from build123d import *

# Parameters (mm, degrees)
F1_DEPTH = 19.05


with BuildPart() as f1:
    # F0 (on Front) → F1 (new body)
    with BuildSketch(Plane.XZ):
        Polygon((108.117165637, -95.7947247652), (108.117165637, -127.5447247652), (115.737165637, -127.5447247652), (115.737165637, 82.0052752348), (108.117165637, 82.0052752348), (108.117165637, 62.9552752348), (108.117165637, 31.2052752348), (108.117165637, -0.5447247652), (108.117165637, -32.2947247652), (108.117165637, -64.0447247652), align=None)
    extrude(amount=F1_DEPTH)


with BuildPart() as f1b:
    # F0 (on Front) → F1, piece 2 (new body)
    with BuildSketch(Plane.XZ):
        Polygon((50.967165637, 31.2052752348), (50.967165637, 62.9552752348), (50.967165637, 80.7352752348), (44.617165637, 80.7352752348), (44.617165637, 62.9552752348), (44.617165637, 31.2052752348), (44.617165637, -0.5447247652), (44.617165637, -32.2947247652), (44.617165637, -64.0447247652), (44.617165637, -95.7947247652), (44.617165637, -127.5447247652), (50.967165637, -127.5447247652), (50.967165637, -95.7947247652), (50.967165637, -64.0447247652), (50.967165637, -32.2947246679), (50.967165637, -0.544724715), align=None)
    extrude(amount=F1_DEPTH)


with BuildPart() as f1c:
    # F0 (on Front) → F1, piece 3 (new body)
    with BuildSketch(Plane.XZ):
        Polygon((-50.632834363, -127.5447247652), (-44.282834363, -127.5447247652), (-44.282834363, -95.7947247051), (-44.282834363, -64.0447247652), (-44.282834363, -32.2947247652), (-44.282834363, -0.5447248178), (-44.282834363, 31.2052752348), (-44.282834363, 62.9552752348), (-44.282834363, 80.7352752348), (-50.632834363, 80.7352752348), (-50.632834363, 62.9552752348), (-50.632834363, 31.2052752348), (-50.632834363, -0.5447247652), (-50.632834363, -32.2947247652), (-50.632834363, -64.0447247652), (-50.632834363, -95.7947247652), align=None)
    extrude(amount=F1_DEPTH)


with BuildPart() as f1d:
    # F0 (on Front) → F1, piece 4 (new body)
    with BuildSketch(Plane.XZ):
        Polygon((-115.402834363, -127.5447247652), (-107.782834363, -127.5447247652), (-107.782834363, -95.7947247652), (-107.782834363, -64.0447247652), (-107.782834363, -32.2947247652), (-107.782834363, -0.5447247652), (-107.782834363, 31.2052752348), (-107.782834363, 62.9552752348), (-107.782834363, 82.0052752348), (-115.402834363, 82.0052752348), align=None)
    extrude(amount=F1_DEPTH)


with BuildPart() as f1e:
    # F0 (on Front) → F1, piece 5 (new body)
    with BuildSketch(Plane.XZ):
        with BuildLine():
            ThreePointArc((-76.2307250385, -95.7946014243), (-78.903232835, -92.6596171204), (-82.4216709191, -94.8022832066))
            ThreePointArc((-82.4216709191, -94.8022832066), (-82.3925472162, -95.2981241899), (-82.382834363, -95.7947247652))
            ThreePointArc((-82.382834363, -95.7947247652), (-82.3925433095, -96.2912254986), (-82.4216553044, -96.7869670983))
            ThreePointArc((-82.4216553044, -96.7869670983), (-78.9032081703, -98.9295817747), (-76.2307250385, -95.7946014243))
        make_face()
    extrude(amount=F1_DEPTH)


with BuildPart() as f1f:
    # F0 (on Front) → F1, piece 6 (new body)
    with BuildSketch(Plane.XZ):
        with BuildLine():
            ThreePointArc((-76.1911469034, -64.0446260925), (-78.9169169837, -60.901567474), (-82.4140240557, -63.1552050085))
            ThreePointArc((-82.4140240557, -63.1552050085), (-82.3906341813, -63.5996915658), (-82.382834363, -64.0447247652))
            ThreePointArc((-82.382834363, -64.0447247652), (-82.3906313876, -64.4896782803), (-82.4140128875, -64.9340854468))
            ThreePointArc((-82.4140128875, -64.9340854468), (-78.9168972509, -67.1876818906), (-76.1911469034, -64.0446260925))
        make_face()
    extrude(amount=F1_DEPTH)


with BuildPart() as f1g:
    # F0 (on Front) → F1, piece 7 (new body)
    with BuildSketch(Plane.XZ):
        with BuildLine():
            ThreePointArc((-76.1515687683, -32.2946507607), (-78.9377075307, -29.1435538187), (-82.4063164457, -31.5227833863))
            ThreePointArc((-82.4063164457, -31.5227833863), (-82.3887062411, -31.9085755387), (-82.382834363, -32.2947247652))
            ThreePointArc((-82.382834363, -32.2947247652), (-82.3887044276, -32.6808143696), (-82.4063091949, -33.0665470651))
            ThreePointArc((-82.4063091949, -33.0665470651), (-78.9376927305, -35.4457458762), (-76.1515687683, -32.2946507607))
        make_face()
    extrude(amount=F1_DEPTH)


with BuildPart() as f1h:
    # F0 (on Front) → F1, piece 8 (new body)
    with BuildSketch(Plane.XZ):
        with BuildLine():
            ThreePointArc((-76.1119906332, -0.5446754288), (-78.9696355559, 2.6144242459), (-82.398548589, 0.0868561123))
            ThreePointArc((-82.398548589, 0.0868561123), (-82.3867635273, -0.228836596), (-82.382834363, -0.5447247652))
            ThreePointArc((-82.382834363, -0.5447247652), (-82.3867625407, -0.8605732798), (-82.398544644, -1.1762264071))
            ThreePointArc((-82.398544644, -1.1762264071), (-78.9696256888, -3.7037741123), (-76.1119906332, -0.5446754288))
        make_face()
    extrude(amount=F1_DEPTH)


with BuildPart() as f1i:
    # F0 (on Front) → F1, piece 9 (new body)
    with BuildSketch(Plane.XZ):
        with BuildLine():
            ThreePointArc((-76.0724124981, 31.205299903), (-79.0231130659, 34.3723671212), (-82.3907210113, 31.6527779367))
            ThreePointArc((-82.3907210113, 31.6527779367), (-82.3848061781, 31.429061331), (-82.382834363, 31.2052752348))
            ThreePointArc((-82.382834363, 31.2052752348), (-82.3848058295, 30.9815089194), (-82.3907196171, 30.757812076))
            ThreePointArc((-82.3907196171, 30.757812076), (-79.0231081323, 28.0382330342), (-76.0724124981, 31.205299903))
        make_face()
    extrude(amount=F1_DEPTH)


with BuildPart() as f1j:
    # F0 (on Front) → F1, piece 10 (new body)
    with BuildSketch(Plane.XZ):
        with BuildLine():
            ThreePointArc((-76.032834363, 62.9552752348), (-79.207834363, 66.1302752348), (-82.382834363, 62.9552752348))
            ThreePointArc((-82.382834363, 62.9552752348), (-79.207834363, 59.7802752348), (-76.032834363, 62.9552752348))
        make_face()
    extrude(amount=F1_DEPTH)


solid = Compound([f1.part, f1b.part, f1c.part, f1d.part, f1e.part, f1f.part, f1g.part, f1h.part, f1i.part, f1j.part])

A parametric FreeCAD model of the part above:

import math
import FreeCAD as App
import Part
import Sketcher

V = App.Vector
Q = App.Units.Quantity


def add_polygon(sketch, points):
    """Adds a closed chain of lines whose ends are joined by coincident constraints."""
    first, n = sketch.GeometryCount, len(points)
    for a, b in zip(points, points[1:] + points[:1]):
        sketch.addGeometry(Part.LineSegment(App.Vector(*a, 0), App.Vector(*b, 0)), False)
    for i in range(n):
        sketch.addConstraint(Sketcher.Constraint("Coincident", first + i, 2, first + (i + 1) % n, 1))

doc = App.newDocument("Part")
body = doc.addObject("PartDesign::Body", "Body")

# Sketch on XZ plane
sketch1 = body.newObject("Sketcher::SketchObject", "Sketch")
sketch1.AttachmentSupport = (doc.getObject("XZ_Plane"), [""])
sketch1.MapMode = "FlatFace"
add_polygon(sketch1, [(108, -128), (116, -128), (116, 82), (108, 82)])  # lines 0-3
sketch1.addConstraint(Sketcher.Constraint("Horizontal", 0))
sketch1.addConstraint(Sketcher.Constraint("Vertical", 1))
sketch1.addConstraint(Sketcher.Constraint("Horizontal", 2))
sketch1.addConstraint(Sketcher.Constraint("Vertical", 3))
sketch1.addConstraint(Sketcher.Constraint("DistanceX", 0, 1, 0, 2, Q("0.3 in")))
sketch1.addConstraint(Sketcher.Constraint("DistanceY", 1, 1, 1, 2, Q("8.25 in")))
sketch1.addConstraint(Sketcher.Constraint("DistanceX", -1, 1, 0, 2, 115.737166))
sketch1.addConstraint(Sketcher.Constraint("DistanceY", 0, 2, -1, 1, 127.544725))
pad1 = body.newObject("PartDesign::Pad", "Pad")
pad1.Profile = sketch1
pad1.Length = Q("0.75 in")
body2 = doc.addObject("PartDesign::Body", "Body001")

# Sketch on XZ plane
sketch2 = body2.newObject("Sketcher::SketchObject", "Sketch001")
sketch2.AttachmentSupport = (doc.getObject("XZ_Plane001"), [""])
sketch2.MapMode = "FlatFace"
add_polygon(sketch2, [(51, 81), (45, 81), (45, -128), (51, -128)])  # lines 0-3
sketch2.addConstraint(Sketcher.Constraint("Horizontal", 0))
sketch2.addConstraint(Sketcher.Constraint("Vertical", 1))
sketch2.addConstraint(Sketcher.Constraint("Horizontal", 2))
sketch2.addConstraint(Sketcher.Constraint("Vertical", 3))
sketch2.addConstraint(Sketcher.Constraint("DistanceY", 1, 2, 1, 1, Q("8.2 in")))
sketch2.addConstraint(Sketcher.Constraint("DistanceX", 0, 2, 0, 1, Q("0.25 in")))
sketch2.addConstraint(Sketcher.Constraint("DistanceX", -1, 1, 0, 2, 44.617166))
sketch2.addConstraint(Sketcher.Constraint("DistanceY", -1, 1, 0, 2, 80.735275))
pad2 = body2.newObject("PartDesign::Pad", "Pad001")
pad2.Profile = sketch2
pad2.Length = Q("0.75 in")
body3 = doc.addObject("PartDesign::Body", "Body002")

# Sketch on XZ plane
sketch3 = body3.newObject("Sketcher::SketchObject", "Sketch002")
sketch3.AttachmentSupport = (doc.getObject("XZ_Plane002"), [""])
sketch3.MapMode = "FlatFace"
add_polygon(sketch3, [(-51, -128), (-44, -128), (-44, 81), (-51, 81)])  # lines 0-3
sketch3.addConstraint(Sketcher.Constraint("Horizontal", 0))
sketch3.addConstraint(Sketcher.Constraint("Vertical", 1))
sketch3.addConstraint(Sketcher.Constraint("Horizontal", 2))
sketch3.addConstraint(Sketcher.Constraint("Vertical", 3))
sketch3.addConstraint(Sketcher.Constraint("DistanceY", 1, 1, 1, 2, Q("8.2 in")))
sketch3.addConstraint(Sketcher.Constraint("DistanceX", 0, 1, 0, 2, Q("0.25 in")))
sketch3.addConstraint(Sketcher.Constraint("DistanceX", 0, 2, -1, 1, 44.282834))
sketch3.addConstraint(Sketcher.Constraint("DistanceY", 0, 2, -1, 1, 127.544725))
pad3 = body3.newObject("PartDesign::Pad", "Pad002")
pad3.Profile = sketch3
pad3.Length = Q("0.75 in")
body4 = doc.addObject("PartDesign::Body", "Body003")

# Sketch on XZ plane
sketch4 = body4.newObject("Sketcher::SketchObject", "Sketch003")
sketch4.AttachmentSupport = (doc.getObject("XZ_Plane003"), [""])
sketch4.MapMode = "FlatFace"
add_polygon(sketch4, [(-115, -128), (-108, -128), (-108, 82), (-115, 82)])  # lines 0-3
sketch4.addConstraint(Sketcher.Constraint("Horizontal", 0))
sketch4.addConstraint(Sketcher.Constraint("Vertical", 1))
sketch4.addConstraint(Sketcher.Constraint("Horizontal", 2))
sketch4.addConstraint(Sketcher.Constraint("Vertical", 3))
sketch4.addConstraint(Sketcher.Constraint("DistanceX", 0, 1, 0, 2, Q("0.3 in")))
sketch4.addConstraint(Sketcher.Constraint("DistanceY", 1, 1, 1, 2, Q("8.25 in")))
sketch4.addConstraint(Sketcher.Constraint("DistanceX", 0, 2, -1, 1, 107.782834))
sketch4.addConstraint(Sketcher.Constraint("DistanceY", 0, 2, -1, 1, 127.544725))
pad4 = body4.newObject("PartDesign::Pad", "Pad003")
pad4.Profile = sketch4
pad4.Length = Q("0.75 in")
body5 = doc.addObject("PartDesign::Body", "Body004")

# Sketch on XZ plane
sketch5 = body5.newObject("Sketcher::SketchObject", "Sketch004")
sketch5.AttachmentSupport = (doc.getObject("XZ_Plane004"), [""])
sketch5.MapMode = "FlatFace"
sketch5.addGeometry(Part.ArcOfCircle(Part.Circle(V(-79.4, -95.8, 0), V(0, 0, 1), 3.2), math.radians(0), math.radians(162)), False)
sketch5.addGeometry(Part.ArcOfCircle(Part.Circle(V(-95.1, -95.8, 0), V(0, 0, 1), 12.7), math.radians(0), math.radians(4.48)), False)
sketch5.addGeometry(Part.ArcOfCircle(Part.Circle(V(-95.1, -95.8, 0), V(0, 0, 1), 12.7), math.radians(-4.48), math.radians(0)), False)
sketch5.addGeometry(Part.ArcOfCircle(Part.Circle(V(-79.4, -95.8, 0), V(0, 0, 1), 3.2), math.radians(-162), math.radians(0)), False)
sketch5.addConstraint(Sketcher.Constraint("Coincident", 0, 2, 1, 2))
sketch5.addConstraint(Sketcher.Constraint("Tangent", 1, 1, 2, 2))
sketch5.addConstraint(Sketcher.Constraint("Coincident", 2, 1, 3, 1))
sketch5.addConstraint(Sketcher.Constraint("Tangent", 3, 2, 0, 1))
sketch5.addConstraint(Sketcher.Constraint("Equal", 1, 2))
sketch5.addConstraint(Sketcher.Constraint("Equal", 0, 3))
sketch5.addConstraint(Sketcher.Constraint("Horizontal", 2, 3, 1, 1))
sketch5.addConstraint(Sketcher.Constraint("Horizontal", 0, 3, 3, 2))
sketch5.addConstraint(Sketcher.Constraint("Radius", 1, Q("0.5 in")))
sketch5.addConstraint(Sketcher.Constraint("Radius", 0, Q("0.125 in")))
sketch5.addConstraint(Sketcher.Constraint("DistanceY", 0, 3, -1, 1, 95.794601))
sketch5.addConstraint(Sketcher.Constraint("DistanceX", 0, 2, -1, 1, 82.421671))
sketch5.addConstraint(Sketcher.Constraint("DistanceX", 1, 3, 0, 3, 15.677109))
sketch5.addConstraint(Sketcher.Constraint("DistanceY", 0, 3, 0, 2, 0.992318))
pad5 = body5.newObject("PartDesign::Pad", "Pad004")
pad5.Profile = sketch5
pad5.Length = Q("0.75 in")
body6 = doc.addObject("PartDesign::Body", "Body005")

# Sketch on XZ plane
sketch6 = body6.newObject("Sketcher::SketchObject", "Sketch005")
sketch6.AttachmentSupport = (doc.getObject("XZ_Plane005"), [""])
sketch6.MapMode = "FlatFace"
sketch6.addGeometry(Part.ArcOfCircle(Part.Circle(V(-79.4, -64, 0), V(0, 0, 1), 3.2), math.radians(0), math.radians(164)), False)
sketch6.addGeometry(Part.ArcOfCircle(Part.Circle(V(-95.1, -64, 0), V(0, 0, 1), 12.7), math.radians(0), math.radians(4.02)), False)
sketch6.addGeometry(Part.ArcOfCircle(Part.Circle(V(-95.1, -64, 0), V(0, 0, 1), 12.7), math.radians(-4.02), math.radians(0)), False)
sketch6.addGeometry(Part.ArcOfCircle(Part.Circle(V(-79.4, -64, 0), V(0, 0, 1), 3.2), math.radians(-164), math.radians(0)), False)
sketch6.addConstraint(Sketcher.Constraint("Coincident", 0, 2, 1, 2))
sketch6.addConstraint(Sketcher.Constraint("Tangent", 1, 1, 2, 2))
sketch6.addConstraint(Sketcher.Constraint("Coincident", 2, 1, 3, 1))
sketch6.addConstraint(Sketcher.Constraint("Tangent", 3, 2, 0, 1))
sketch6.addConstraint(Sketcher.Constraint("Equal", 1, 2))
sketch6.addConstraint(Sketcher.Constraint("Equal", 0, 3))
sketch6.addConstraint(Sketcher.Constraint("Horizontal", 2, 3, 1, 1))
sketch6.addConstraint(Sketcher.Constraint("Horizontal", 0, 3, 3, 2))
sketch6.addConstraint(Sketcher.Constraint("Radius", 1, Q("0.5 in")))
sketch6.addConstraint(Sketcher.Constraint("Radius", 0, Q("0.125 in")))
sketch6.addConstraint(Sketcher.Constraint("DistanceY", 0, 3, 0, 2, 0.889421))
sketch6.addConstraint(Sketcher.Constraint("DistanceX", 1, 3, 0, 2, 12.66881))
sketch6.addConstraint(Sketcher.Constraint("DistanceX", 0, 3, -1, 1, 79.366147))
sketch6.addConstraint(Sketcher.Constraint("DistanceY", 0, 3, -1, 1, 64.044626))
pad6 = body6.newObject("PartDesign::Pad", "Pad005")
pad6.Profile = sketch6
pad6.Length = Q("0.75 in")
body7 = doc.addObject("PartDesign::Body", "Body006")

# Sketch on XZ plane
sketch7 = body7.newObject("Sketcher::SketchObject", "Sketch006")
sketch7.AttachmentSupport = (doc.getObject("XZ_Plane006"), [""])
sketch7.MapMode = "FlatFace"
sketch7.addGeometry(Part.ArcOfCircle(Part.Circle(V(-79.3, -32.3, 0), V(0, 0, 1), 3.2), math.radians(0), math.radians(166)), False)
sketch7.addGeometry(Part.ArcOfCircle(Part.Circle(V(-95.1, -32.3, 0), V(0, 0, 1), 12.7), math.radians(0), math.radians(3.48)), False)
sketch7.addGeometry(Part.ArcOfCircle(Part.Circle(V(-95.1, -32.3, 0), V(0, 0, 1), 12.7), math.radians(-3.48), math.radians(0)), False)
sketch7.addGeometry(Part.ArcOfCircle(Part.Circle(V(-79.3, -32.3, 0), V(0, 0, 1), 3.2), math.radians(-166), math.radians(0)), False)
sketch7.addConstraint(Sketcher.Constraint("Coincident", 0, 2, 1, 2))
sketch7.addConstraint(Sketcher.Constraint("Tangent", 1, 1, 2, 2))
sketch7.addConstraint(Sketcher.Constraint("Coincident", 2, 1, 3, 1))
sketch7.addConstraint(Sketcher.Constraint("Tangent", 3, 2, 0, 1))
sketch7.addConstraint(Sketcher.Constraint("Equal", 1, 2))
sketch7.addConstraint(Sketcher.Constraint("Equal", 0, 3))
sketch7.addConstraint(Sketcher.Constraint("Horizontal", 2, 3, 1, 1))
sketch7.addConstraint(Sketcher.Constraint("Horizontal", 0, 3, 3, 2))
sketch7.addConstraint(Sketcher.Constraint("Radius", 1, Q("0.5 in")))
sketch7.addConstraint(Sketcher.Constraint("Radius", 0, Q("0.125 in")))
sketch7.addConstraint(Sketcher.Constraint("DistanceX", 0, 3, -1, 1, 79.326569))
sketch7.addConstraint(Sketcher.Constraint("DistanceY", 0, 3, -1, 1, 32.294651))
sketch7.addConstraint(Sketcher.Constraint("DistanceX", 2, 1, -1, 1, 82.406309))
sketch7.addConstraint(Sketcher.Constraint("DistanceY", 1, 3, 0, 2, 0.771941))
pad7 = body7.newObject("PartDesign::Pad", "Pad006")
pad7.Profile = sketch7
pad7.Length = Q("0.75 in")
body8 = doc.addObject("PartDesign::Body", "Body007")

# Sketch on XZ plane
sketch8 = body8.newObject("Sketcher::SketchObject", "Sketch007")
sketch8.AttachmentSupport = (doc.getObject("XZ_Plane007"), [""])
sketch8.MapMode = "FlatFace"
sketch8.addGeometry(Part.ArcOfCircle(Part.Circle(V(-79.3, -0.5, 0), V(0, 0, 1), 3.2), math.radians(0), math.radians(169)), False)
sketch8.addGeometry(Part.ArcOfCircle(Part.Circle(V(-95.1, -0.5, 0), V(0, 0, 1), 12.7), math.radians(0), math.radians(2.85)), False)
sketch8.addGeometry(Part.ArcOfCircle(Part.Circle(V(-95.1, -0.5, 0), V(0, 0, 1), 12.7), math.radians(-2.85), math.radians(0)), False)
sketch8.addGeometry(Part.ArcOfCircle(Part.Circle(V(-79.3, -0.5, 0), V(0, 0, 1), 3.2), math.radians(-169), math.radians(0)), False)
sketch8.addConstraint(Sketcher.Constraint("Coincident", 0, 2, 1, 2))
sketch8.addConstraint(Sketcher.Constraint("Tangent", 1, 1, 2, 2))
sketch8.addConstraint(Sketcher.Constraint("Coincident", 2, 1, 3, 1))
sketch8.addConstraint(Sketcher.Constraint("Tangent", 3, 2, 0, 1))
sketch8.addConstraint(Sketcher.Constraint("Equal", 1, 2))
sketch8.addConstraint(Sketcher.Constraint("Equal", 0, 3))
sketch8.addConstraint(Sketcher.Constraint("Horizontal", 2, 3, 1, 1))
sketch8.addConstraint(Sketcher.Constraint("Horizontal", 0, 3, 3, 2))
sketch8.addConstraint(Sketcher.Constraint("Radius", 1, Q("0.5 in")))
sketch8.addConstraint(Sketcher.Constraint("Radius", 0, Q("0.125 in")))
sketch8.addConstraint(Sketcher.Constraint("DistanceY", 2, 1, 1, 1, 0.631502))
sketch8.addConstraint(Sketcher.Constraint("DistanceX", 0, 3, -1, 1, 79.286991))
sketch8.addConstraint(Sketcher.Constraint("DistanceX", 0, 2, -1, 1, 82.398549))
sketch8.addConstraint(Sketcher.Constraint("DistanceY", 0, 3, -1, 1, 0.544675))
pad8 = body8.newObject("PartDesign::Pad", "Pad007")
pad8.Profile = sketch8
pad8.Length = Q("0.75 in")
body9 = doc.addObject("PartDesign::Body", "Body008")

# Sketch on XZ plane
sketch9 = body9.newObject("Sketcher::SketchObject", "Sketch008")
sketch9.AttachmentSupport = (doc.getObject("XZ_Plane008"), [""])
sketch9.MapMode = "FlatFace"
sketch9.addGeometry(Part.ArcOfCircle(Part.Circle(V(-79.247412, 31.2053, 0), V(0, 0, 1), 3.175), math.radians(0), math.radians(171.897874)), False)
sketch9.addGeometry(Part.ArcOfCircle(Part.Circle(V(-95.082834, 31.205275, 0), V(0, 0, 1), 12.7), math.radians(0), math.radians(2.019317)), False)
sketch9.addGeometry(Part.ArcOfCircle(Part.Circle(V(-95.082834, 31.205275, 0), V(0, 0, 1), 12.7), math.radians(-2.019138), math.radians(0)), False)
sketch9.addGeometry(Part.ArcOfCircle(Part.Circle(V(-79.247412, 31.2053, 0), V(0, 0, 1), 3.175), math.radians(-171.897696), math.radians(0)), False)
sketch9.addConstraint(Sketcher.Constraint("Coincident", 0, 2, 1, 2))
sketch9.addConstraint(Sketcher.Constraint("Coincident", 1, 1, 2, 2))
sketch9.addConstraint(Sketcher.Constraint("Coincident", 2, 1, 3, 1))
sketch9.addConstraint(Sketcher.Constraint("Coincident", 3, 2, 0, 1))
sketch9.addConstraint(Sketcher.Constraint("Coincident", 2, 3, 1, 3))
sketch9.addConstraint(Sketcher.Constraint("Coincident", 3, 3, 0, 3))
sketch9.addConstraint(Sketcher.Constraint("Radius", 1, Q("0.5 in")))
sketch9.addConstraint(Sketcher.Constraint("Radius", 0, Q("0.125 in")))
sketch9.addConstraint(Sketcher.Constraint("DistanceY", -1, 1, 0, 3, 31.2053))
sketch9.addConstraint(Sketcher.Constraint("DistanceY", -1, 1, 3, 2, 31.2053))
sketch9.addConstraint(Sketcher.Constraint("DistanceX", 0, 2, -1, 1, 82.390721))
sketch9.addConstraint(Sketcher.Constraint("DistanceX", 2, 1, -1, 1, 82.39072))
sketch9.addConstraint(Sketcher.Constraint("DistanceX", 1, 3, 0, 3, 15.835422))
sketch9.addConstraint(Sketcher.Constraint("DistanceY", -1, 1, 1, 1, 31.205275))
pad9 = body9.newObject("PartDesign::Pad", "Pad008")
pad9.Profile = sketch9
pad9.Length = Q("0.75 in")
body10 = doc.addObject("PartDesign::Body", "Body009")

# Sketch on XZ plane
sketch10 = body10.newObject("Sketcher::SketchObject", "Sketch009")
sketch10.AttachmentSupport = (doc.getObject("XZ_Plane009"), [""])
sketch10.MapMode = "FlatFace"
sketch10.addGeometry(Part.Circle(V(-79.2, 63, 0), V(0, 0, 1), 3.2), False)
sketch10.addConstraint(Sketcher.Constraint("Diameter", 0, Q("0.25 in")))
sketch10.addConstraint(Sketcher.Constraint("DistanceX", 0, 3, -1, 1, 79.207834))
sketch10.addConstraint(Sketcher.Constraint("DistanceY", -1, 1, 0, 3, 62.955275))
pad10 = body10.newObject("PartDesign::Pad", "Pad009")
pad10.Profile = sketch10
pad10.Length = Q("0.75 in")

doc.recompute()
